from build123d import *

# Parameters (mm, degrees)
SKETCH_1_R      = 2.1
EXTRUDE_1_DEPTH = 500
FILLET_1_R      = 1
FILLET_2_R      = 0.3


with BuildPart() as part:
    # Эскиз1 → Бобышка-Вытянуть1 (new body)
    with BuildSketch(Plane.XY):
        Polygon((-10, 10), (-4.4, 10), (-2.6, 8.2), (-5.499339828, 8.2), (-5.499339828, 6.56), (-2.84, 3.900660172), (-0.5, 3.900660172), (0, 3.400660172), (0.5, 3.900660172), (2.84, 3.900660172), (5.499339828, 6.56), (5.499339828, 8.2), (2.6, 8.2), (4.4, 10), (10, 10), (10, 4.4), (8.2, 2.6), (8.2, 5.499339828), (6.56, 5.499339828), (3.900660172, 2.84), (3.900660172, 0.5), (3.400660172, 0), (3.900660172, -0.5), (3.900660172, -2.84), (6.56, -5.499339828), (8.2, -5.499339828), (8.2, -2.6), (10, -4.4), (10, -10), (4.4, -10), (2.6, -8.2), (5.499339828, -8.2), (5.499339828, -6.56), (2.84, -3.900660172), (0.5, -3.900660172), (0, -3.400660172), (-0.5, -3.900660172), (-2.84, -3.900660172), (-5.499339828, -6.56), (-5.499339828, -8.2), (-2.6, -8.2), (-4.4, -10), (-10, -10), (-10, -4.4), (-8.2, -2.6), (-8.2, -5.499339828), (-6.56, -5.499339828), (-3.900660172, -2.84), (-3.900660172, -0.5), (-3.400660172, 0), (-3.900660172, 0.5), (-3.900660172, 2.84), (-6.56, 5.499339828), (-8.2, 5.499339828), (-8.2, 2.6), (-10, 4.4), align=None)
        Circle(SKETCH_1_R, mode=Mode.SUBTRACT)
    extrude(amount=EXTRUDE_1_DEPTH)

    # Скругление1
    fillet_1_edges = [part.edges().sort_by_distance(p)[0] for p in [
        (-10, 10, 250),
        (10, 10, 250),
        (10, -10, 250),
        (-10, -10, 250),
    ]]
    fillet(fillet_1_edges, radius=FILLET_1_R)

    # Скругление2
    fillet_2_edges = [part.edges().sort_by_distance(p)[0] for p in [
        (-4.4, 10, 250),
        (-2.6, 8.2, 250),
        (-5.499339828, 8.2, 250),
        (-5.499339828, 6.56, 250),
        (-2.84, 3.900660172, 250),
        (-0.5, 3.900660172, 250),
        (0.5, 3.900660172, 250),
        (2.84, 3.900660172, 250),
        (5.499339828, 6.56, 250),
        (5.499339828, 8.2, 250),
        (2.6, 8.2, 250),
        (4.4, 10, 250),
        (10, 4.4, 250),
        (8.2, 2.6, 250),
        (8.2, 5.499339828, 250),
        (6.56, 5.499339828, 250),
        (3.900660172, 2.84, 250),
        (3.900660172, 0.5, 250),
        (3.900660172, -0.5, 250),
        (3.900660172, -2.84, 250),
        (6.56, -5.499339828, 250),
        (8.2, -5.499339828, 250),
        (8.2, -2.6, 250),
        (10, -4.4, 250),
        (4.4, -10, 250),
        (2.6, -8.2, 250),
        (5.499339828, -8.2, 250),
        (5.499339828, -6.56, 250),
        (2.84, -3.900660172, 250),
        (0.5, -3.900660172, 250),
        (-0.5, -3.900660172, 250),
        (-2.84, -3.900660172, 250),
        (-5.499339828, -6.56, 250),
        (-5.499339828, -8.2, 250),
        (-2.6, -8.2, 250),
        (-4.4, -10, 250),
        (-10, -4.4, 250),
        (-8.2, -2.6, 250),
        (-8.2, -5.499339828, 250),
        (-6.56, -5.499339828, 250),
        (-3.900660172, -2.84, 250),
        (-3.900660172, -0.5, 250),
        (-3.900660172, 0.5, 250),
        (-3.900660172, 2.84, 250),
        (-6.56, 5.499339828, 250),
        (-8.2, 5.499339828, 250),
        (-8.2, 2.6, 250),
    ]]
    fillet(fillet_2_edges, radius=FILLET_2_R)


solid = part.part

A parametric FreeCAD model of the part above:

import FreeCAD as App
import Part
import Sketcher
Q = App.Units.Quantity


def edges_at(feature, points):
    """Names of the edges that pass closest to the given points."""
    edges = feature.Shape.Edges
    near = lambda p: min(range(len(edges)), key=lambda i: edges[i].distToShape(Part.Vertex(*p))[0])
    return sorted({f"Edge{near(p) + 1}" for p in points})

doc = App.newDocument("Part")
body = doc.addObject("PartDesign::Body", "Body")

sketch1 = doc.addObject("Sketcher::SketchObject", "Sketch")
body.addObject(sketch1)
sketch1.AttachmentSupport = (doc.XY_Plane, [""])
sketch1.MapMode = "FlatFace"
sketch1.addGeometry([
    Part.LineSegment(App.Vector(-4.4, 10, 0), App.Vector(-10, 10, 0)),
    Part.LineSegment(App.Vector(-10, 10, 0), App.Vector(-10, 4.4, 0)),
    Part.LineSegment(App.Vector(-10, 4.4, 0), App.Vector(-8.2, 2.6, 0)),
    Part.LineSegment(App.Vector(-8.2, 2.6, 0), App.Vector(-8.2, 5.5, 0)),
    Part.LineSegment(App.Vector(-8.2, 5.5, 0), App.Vector(-6.6, 5.5, 0)),
    Part.LineSegment(App.Vector(-6.6, 5.5, 0), App.Vector(-3.9, 2.8, 0)),
    Part.LineSegment(App.Vector(-3.9, 2.8, 0), App.Vector(-3.9, 0.5, 0)),
    Part.LineSegment(App.Vector(-3.9, 0.5, 0), App.Vector(-3.4, 0, 0)),
    Part.LineSegment(App.Vector(-3.4, 0, 0), App.Vector(-3.9, -0.5, 0)),
    Part.LineSegment(App.Vector(-3.9, -0.5, 0), App.Vector(-3.9, -2.8, 0)),
    Part.LineSegment(App.Vector(-3.9, -2.8, 0), App.Vector(-6.6, -5.5, 0)),
    Part.LineSegment(App.Vector(-6.6, -5.5, 0), App.Vector(-8.2, -5.5, 0)),
    Part.LineSegment(App.Vector(-8.2, -5.5, 0), App.Vector(-8.2, -2.6, 0)),
    Part.LineSegment(App.Vector(-8.2, -2.6, 0), App.Vector(-10, -4.4, 0)),
    Part.LineSegment(App.Vector(-10, -4.4, 0), App.Vector(-10, -10, 0)),
    Part.LineSegment(App.Vector(-10, -10, 0), App.Vector(-4.4, -10, 0)),
    Part.LineSegment(App.Vector(-4.4, -10, 0), App.Vector(-2.6, -8.2, 0)),
    Part.LineSegment(App.Vector(-2.6, -8.2, 0), App.Vector(-5.5, -8.2, 0)),
    Part.LineSegment(App.Vector(-5.5, -8.2, 0), App.Vector(-5.5, -6.6, 0)),
    Part.LineSegment(App.Vector(-5.5, -6.6, 0), App.Vector(-2.8, -3.9, 0)),
    Part.LineSegment(App.Vector(-2.8, -3.9, 0), App.Vector(-0.5, -3.9, 0)),
    Part.LineSegment(App.Vector(-0.5, -3.9, 0), App.Vector(0, -3.4, 0)),
    Part.LineSegment(App.Vector(0, -3.4, 0), App.Vector(0.5, -3.9, 0)),
    Part.LineSegment(App.Vector(0.5, -3.9, 0), App.Vector(2.8, -3.9, 0)),
    Part.LineSegment(App.Vector(2.8, -3.9, 0), App.Vector(5.5, -6.6, 0)),
    Part.LineSegment(App.Vector(5.5, -6.6, 0), App.Vector(5.5, -8.2, 0)),
    Part.LineSegment(App.Vector(5.5, -8.2, 0), App.Vector(2.6, -8.2, 0)),
    Part.LineSegment(App.Vector(2.6, -8.2, 0), App.Vector(4.4, -10, 0)),
    Part.LineSegment(App.Vector(4.4, -10, 0), App.Vector(10, -10, 0)),
    Part.LineSegment(App.Vector(10, -10, 0), App.Vector(10, -4.4, 0)),
    Part.LineSegment(App.Vector(10, -4.4, 0), App.Vector(8.2, -2.6, 0)),
    Part.LineSegment(App.Vector(8.2, -2.6, 0), App.Vector(8.2, -5.5, 0)),
    Part.LineSegment(App.Vector(8.2, -5.5, 0), App.Vector(6.6, -5.5, 0)),
    Part.LineSegment(App.Vector(6.6, -5.5, 0), App.Vector(3.9, -2.8, 0)),
    Part.LineSegment(App.Vector(3.9, -2.8, 0), App.Vector(3.9, -0.5, 0)),
    Part.LineSegment(App.Vector(3.9, -0.5, 0), App.Vector(3.4, 0, 0)),
    Part.LineSegment(App.Vector(3.4, 0, 0), App.Vector(3.9, 0.5, 0)),
    Part.LineSegment(App.Vector(3.9, 0.5, 0), App.Vector(3.9, 2.8, 0)),
    Part.LineSegment(App.Vector(3.9, 2.8, 0), App.Vector(6.6, 5.5, 0)),
    Part.LineSegment(App.Vector(6.6, 5.5, 0), App.Vector(8.2, 5.5, 0)),
    Part.LineSegment(App.Vector(8.2, 5.5, 0), App.Vector(8.2, 2.6, 0)),
    Part.LineSegment(App.Vector(8.2, 2.6, 0), App.Vector(10, 4.4, 0)),
    Part.LineSegment(App.Vector(10, 4.4, 0), App.Vector(10, 10, 0)),
    Part.LineSegment(App.Vector(10, 10, 0), App.Vector(4.4, 10, 0)),
    Part.LineSegment(App.Vector(4.4, 10, 0), App.Vector(2.6, 8.2, 0)),
    Part.LineSegment(App.Vector(2.6, 8.2, 0), App.Vector(5.5, 8.2, 0)),
    Part.LineSegment(App.Vector(5.5, 8.2, 0), App.Vector(5.5, 6.6, 0)),
    Part.LineSegment(App.Vector(5.5, 6.6, 0), App.Vector(2.8, 3.9, 0)),
    Part.LineSegment(App.Vector(2.8, 3.9, 0), App.Vector(0.5, 3.9, 0)),
    Part.LineSegment(App.Vector(0.5, 3.9, 0), App.Vector(0, 3.4, 0)),
    Part.LineSegment(App.Vector(0, 3.4, 0), App.Vector(-0.5, 3.9, 0)),
    Part.LineSegment(App.Vector(-0.5, 3.9, 0), App.Vector(-2.8, 3.9, 0)),
    Part.LineSegment(App.Vector(-2.8, 3.9, 0), App.Vector(-5.5, 6.6, 0)),
    Part.LineSegment(App.Vector(-5.5, 6.6, 0), App.Vector(-5.5, 8.2, 0)),
    Part.LineSegment(App.Vector(-5.5, 8.2, 0), App.Vector(-2.6, 8.2, 0)),
    Part.LineSegment(App.Vector(-2.6, 8.2, 0), App.Vector(-4.4, 10, 0)),
    Part.Circle(App.Vector(0, 0, 0), App.Vector(0, 0, 1), 2.1),
], False)
sketch1.addConstraint([
    Sketcher.Constraint("Coincident", 0, 2, 1, 1),
    Sketcher.Constraint("Coincident", 1, 2, 2, 1),
    Sketcher.Constraint("Coincident", 2, 2, 3, 1),
    Sketcher.Constraint("Coincident", 3, 2, 4, 1),
    Sketcher.Constraint("Coincident", 4, 2, 5, 1),
    Sketcher.Constraint("Coincident", 5, 2, 6, 1),
    Sketcher.Constraint("Coincident", 6, 2, 7, 1),
    Sketcher.Constraint("Coincident", 7, 2, 8, 1),
    Sketcher.Constraint("Coincident", 8, 2, 9, 1),
    Sketcher.Constraint("Coincident", 9, 2, 10, 1),
    Sketcher.Constraint("Coincident", 10, 2, 11, 1),
    Sketcher.Constraint("Coincident", 11, 2, 12, 1),
    Sketcher.Constraint("Coincident", 12, 2, 13, 1),
    Sketcher.Constraint("Coincident", 13, 2, 14, 1),
    Sketcher.Constraint("Coincident", 14, 2, 15, 1),
    Sketcher.Constraint("Coincident", 15, 2, 16, 1),
    Sketcher.Constraint("Coincident", 16, 2, 17, 1),
    Sketcher.Constraint("Coincident", 17, 2, 18, 1),
    Sketcher.Constraint("Coincident", 18, 2, 19, 1),
    Sketcher.Constraint("Coincident", 19, 2, 20, 1),
    Sketcher.Constraint("Coincident", 20, 2, 21, 1),
    Sketcher.Constraint("Coincident", 21, 2, 22, 1),
    Sketcher.Constraint("Coincident", 22, 2, 23, 1),
    Sketcher.Constraint("Coincident", 23, 2, 24, 1),
    Sketcher.Constraint("Coincident", 24, 2, 25, 1),
    Sketcher.Constraint("Coincident", 25, 2, 26, 1),
    Sketcher.Constraint("Coincident", 26, 2, 27, 1),
    Sketcher.Constraint("Coincident", 27, 2, 28, 1),
    Sketcher.Constraint("Coincident", 28, 2, 29, 1),
    Sketcher.Constraint("Coincident", 29, 2, 30, 1),
    Sketcher.Constraint("Coincident", 30, 2, 31, 1),
    Sketcher.Constraint("Coincident", 31, 2, 32, 1),
    Sketcher.Constraint("Coincident", 32, 2, 33, 1),
    Sketcher.Constraint("Coincident", 33, 2, 34, 1),
    Sketcher.Constraint("Coincident", 34, 2, 35, 1),
    Sketcher.Constraint("Coincident", 35, 2, 36, 1),
    Sketcher.Constraint("Coincident", 36, 2, 37, 1),
    Sketcher.Constraint("Coincident", 37, 2, 38, 1),
    Sketcher.Constraint("Coincident", 38, 2, 39, 1),
    Sketcher.Constraint("Coincident", 39, 2, 40, 1),
    Sketcher.Constraint("Coincident", 40, 2, 41, 1),
    Sketcher.Constraint("Coincident", 41, 2, 42, 1),
    Sketcher.Constraint("Coincident", 42, 2, 43, 1),
    Sketcher.Constraint("Coincident", 43, 2, 44, 1),
    Sketcher.Constraint("Coincident", 44, 2, 45, 1),
    Sketcher.Constraint("Coincident", 45, 2, 46, 1),
    Sketcher.Constraint("Coincident", 46, 2, 47, 1),
    Sketcher.Constraint("Coincident", 47, 2, 48, 1),
    Sketcher.Constraint("Coincident", 48, 2, 49, 1),
    Sketcher.Constraint("Coincident", 49, 2, 50, 1),
    Sketcher.Constraint("Coincident", 50, 2, 51, 1),
    Sketcher.Constraint("Coincident", 51, 2, 52, 1),
    Sketcher.Constraint("Coincident", 52, 2, 53, 1),
    Sketcher.Constraint("Coincident", 53, 2, 54, 1),
    Sketcher.Constraint("Coincident", 54, 2, 55, 1),
    Sketcher.Constraint("Coincident", 55, 2, 0, 1),
    Sketcher.Constraint("Horizontal", 0),
    Sketcher.Constraint("Vertical", 1),
    Sketcher.Constraint("Vertical", 3),
    Sketcher.Constraint("Horizontal", 4),
    Sketcher.Constraint("Vertical", 6),
    Sketcher.Constraint("Vertical", 9),
    Sketcher.Constraint("Horizontal", 11),
    Sketcher.Constraint("Vertical", 12),
    Sketcher.Constraint("Vertical", 14),
    Sketcher.Constraint("Horizontal", 15),
    Sketcher.Constraint("Horizontal", 17),
    Sketcher.Constraint("Vertical", 18),
    Sketcher.Constraint("Horizontal", 20),
    Sketcher.Constraint("Horizontal", 23),
    Sketcher.Constraint("Vertical", 25),
    Sketcher.Constraint("Horizontal", 26),
    Sketcher.Constraint("Horizontal", 28),
    Sketcher.Constraint("Vertical", 29),
    Sketcher.Constraint("Vertical", 31),
    Sketcher.Constraint("Horizontal", 32),
    Sketcher.Constraint("Vertical", 34),
    Sketcher.Constraint("Vertical", 37),
    Sketcher.Constraint("Horizontal", 39),
    Sketcher.Constraint("Vertical", 40),
    Sketcher.Constraint("Vertical", 42),
    Sketcher.Constraint("Horizontal", 43),
    Sketcher.Constraint("Horizontal", 45),
    Sketcher.Constraint("Vertical", 46),
    Sketcher.Constraint("Horizontal", 48),
    Sketcher.Constraint("Horizontal", 51),
    Sketcher.Constraint("Vertical", 53),
    Sketcher.Constraint("Horizontal", 54),
    Sketcher.Constraint("Coincident", 56, 3, -1, 1),
    Sketcher.Constraint("Symmetric", 0, 2, 28, 2, -1, 1),
    Sketcher.Constraint("Symmetric", 2, 2, 30, 2, -1, 1),
    Sketcher.Constraint("Symmetric", 4, 2, 32, 2, -1, 1),
    Sketcher.Constraint("Symmetric", 5, 2, 33, 2, -1, 1),
    Sketcher.Constraint("Symmetric", 7, 2, 35, 2, -1, 1),
    Sketcher.Constraint("Symmetric", 8, 2, 36, 2, -1, 1),
    Sketcher.Constraint("Symmetric", 10, 2, 38, 2, -1, 1),
    Sketcher.Constraint("Symmetric", 12, 2, 40, 2, -1, 1),
    Sketcher.Constraint("Symmetric", 13, 2, 41, 2, -1, 1),
    Sketcher.Constraint("Symmetric", 15, 2, 43, 2, -1, 1),
    Sketcher.Constraint("Symmetric", 16, 2, 44, 2, -1, 1),
    Sketcher.Constraint("Symmetric", 18, 2, 46, 2, -1, 1),
    Sketcher.Constraint("Symmetric", 19, 2, 47, 2, -1, 1),
    Sketcher.Constraint("Symmetric", 21, 2, 49, 2, -1, 1),
    Sketcher.Constraint("Symmetric", 22, 2, 50, 2, -1, 1),
    Sketcher.Constraint("Symmetric", 24, 2, 52, 2, -1, 1),
    Sketcher.Constraint("Symmetric", 26, 2, 54, 2, -1, 1),
    Sketcher.Constraint("Symmetric", 20, 2, 22, 2, -2),
    Sketcher.Constraint("Symmetric", 18, 2, 24, 2, -2),
    Sketcher.Constraint("Symmetric", 16, 2, 26, 2, -2),
    Sketcher.Constraint("Symmetric", 15, 2, 27, 2, -2),
    Sketcher.Constraint("Symmetric", 13, 2, 29, 2, -2),
    Sketcher.Constraint("Symmetric", 12, 2, 30, 2, -2),
    Sketcher.Constraint("Symmetric", 10, 2, 32, 2, -2),
    Sketcher.Constraint("Symmetric", 9, 2, 33, 2, -2),
    Sketcher.Constraint("PointOnObject", 7, 2, -1),
    Sketcher.Constraint("PointOnObject", 21, 2, -2),
    Sketcher.Constraint("Parallel", 2, 5),
    Sketcher.Constraint("Parallel", 5, 7),
    Sketcher.Constraint("Perpendicular", 7, 8),
    Sketcher.Constraint("Parallel", 8, 10),
    Sketcher.Constraint("Parallel", 10, 13),
    Sketcher.Constraint("Parallel", 13, 16),
    Sketcher.Constraint("Parallel", 16, 19),
    Sketcher.Constraint("Parallel", 19, 21),
    Sketcher.Constraint("Parallel", 22, 24),
    Sketcher.Constraint("Parallel", 33, 35),
    Sketcher.Constraint("Parallel", 36, 38),
    Sketcher.Constraint("Parallel", 47, 49),
    Sketcher.Constraint("Parallel", 50, 52),
    Sketcher.Constraint("Parallel", 52, 55),
    Sketcher.Constraint("Equal", 43, 1),
    Sketcher.Constraint("Equal", 54, 3),
    Sketcher.Constraint("Equal", 51, 6),
    Sketcher.Constraint("Equal", 39, 18),
    Sketcher.Constraint("Equal", 13, 16),
    Sketcher.Constraint("Equal", 10, 19),
    Sketcher.Constraint("Equal", 8, 21),
    Sketcher.Constraint("Diameter", 56, Q("4.2 mm")),
    Sketcher.Constraint("DistanceX", 0, 2, 0, 1, Q("5.6 mm")),
    Sketcher.Constraint("DistanceX", 0, 2, -1, 1, Q("10 mm")),
    Sketcher.Constraint("DistanceY", 8, 2, 6, 2, Q("1 mm")),
    Sketcher.Constraint("DistanceY", 13, 2, 2, 2, Q("7 mm")),
    Sketcher.Constraint("DistanceX", 4, 1, 4, 2, Q("1.64 mm")),
    Sketcher.Constraint("DistanceX", 20, 1, 20, 2, Q("2.34 mm")),
    Sketcher.Constraint("DistanceX", 17, 2, 17, 1, Q("2.89934 mm")),
])
pad1 = doc.addObject("PartDesign::Pad", "Pad")
body.addObject(pad1)
pad1.Profile = sketch1
pad1.Length = 500
doc.recompute()

fillet = doc.addObject("PartDesign::Fillet", "Fillet")
body.addObject(fillet)
fillet.Base = (pad1, edges_at(pad1, [
    (-10, 10, 250),
    (10, 10, 250),
    (10, -10, 250),
    (-10, -10, 250),
]))
fillet.Radius = 1
doc.recompute()

fillet2 = doc.addObject("PartDesign::Fillet", "Fillet001")
body.addObject(fillet2)
fillet2.Base = (fillet, edges_at(fillet, [
    (-4.4, 10, 250),
    (-2.6, 8.2, 250),
    (-5.499, 8.2, 250),
    (-5.499, 6.56, 250),
    (-2.84, 3.901, 250),
    (-0.5, 3.901, 250),
    (0.5, 3.901, 250),
    (2.84, 3.901, 250),
    (5.499, 6.56, 250),
    (5.499, 8.2, 250),
    (2.6, 8.2, 250),
    (4.4, 10, 250),
    (10, 4.4, 250),
    (8.2, 2.6, 250),
    (8.2, 5.499, 250),
    (6.56, 5.499, 250),
    (3.901, 2.84, 250),
    (3.901, 0.5, 250),
    (3.901, -0.5, 250),
    (3.901, -2.84, 250),
    (6.56, -5.499, 250),
    (8.2, -5.499, 250),
    (8.2, -2.6, 250),
    (10, -4.4, 250),
    (4.4, -10, 250),
    (2.6, -8.2, 250),
    (5.499, -8.2, 250),
    (5.499, -6.56, 250),
    (2.84, -3.901, 250),
    (0.5, -3.901, 250),
    (-0.5, -3.901, 250),
    (-2.84, -3.901, 250),
    (-5.499, -6.56, 250),
    (-5.499, -8.2, 250),
    (-2.6, -8.2, 250),
    (-4.4, -10, 250),
    (-10, -4.4, 250),
    (-8.2, -2.6, 250),
    (-8.2, -5.499, 250),
    (-6.56, -5.499, 250),
    (-3.901, -2.84, 250),
    (-3.901, -0.5, 250),
    (-3.901, 0.5, 250),
    (-3.901, 2.84, 250),
    (-6.56, 5.499, 250),
    (-8.2, 5.499, 250),
    (-8.2, 2.6, 250),
]))
fillet2.Radius = 0.3

doc.recompute()
